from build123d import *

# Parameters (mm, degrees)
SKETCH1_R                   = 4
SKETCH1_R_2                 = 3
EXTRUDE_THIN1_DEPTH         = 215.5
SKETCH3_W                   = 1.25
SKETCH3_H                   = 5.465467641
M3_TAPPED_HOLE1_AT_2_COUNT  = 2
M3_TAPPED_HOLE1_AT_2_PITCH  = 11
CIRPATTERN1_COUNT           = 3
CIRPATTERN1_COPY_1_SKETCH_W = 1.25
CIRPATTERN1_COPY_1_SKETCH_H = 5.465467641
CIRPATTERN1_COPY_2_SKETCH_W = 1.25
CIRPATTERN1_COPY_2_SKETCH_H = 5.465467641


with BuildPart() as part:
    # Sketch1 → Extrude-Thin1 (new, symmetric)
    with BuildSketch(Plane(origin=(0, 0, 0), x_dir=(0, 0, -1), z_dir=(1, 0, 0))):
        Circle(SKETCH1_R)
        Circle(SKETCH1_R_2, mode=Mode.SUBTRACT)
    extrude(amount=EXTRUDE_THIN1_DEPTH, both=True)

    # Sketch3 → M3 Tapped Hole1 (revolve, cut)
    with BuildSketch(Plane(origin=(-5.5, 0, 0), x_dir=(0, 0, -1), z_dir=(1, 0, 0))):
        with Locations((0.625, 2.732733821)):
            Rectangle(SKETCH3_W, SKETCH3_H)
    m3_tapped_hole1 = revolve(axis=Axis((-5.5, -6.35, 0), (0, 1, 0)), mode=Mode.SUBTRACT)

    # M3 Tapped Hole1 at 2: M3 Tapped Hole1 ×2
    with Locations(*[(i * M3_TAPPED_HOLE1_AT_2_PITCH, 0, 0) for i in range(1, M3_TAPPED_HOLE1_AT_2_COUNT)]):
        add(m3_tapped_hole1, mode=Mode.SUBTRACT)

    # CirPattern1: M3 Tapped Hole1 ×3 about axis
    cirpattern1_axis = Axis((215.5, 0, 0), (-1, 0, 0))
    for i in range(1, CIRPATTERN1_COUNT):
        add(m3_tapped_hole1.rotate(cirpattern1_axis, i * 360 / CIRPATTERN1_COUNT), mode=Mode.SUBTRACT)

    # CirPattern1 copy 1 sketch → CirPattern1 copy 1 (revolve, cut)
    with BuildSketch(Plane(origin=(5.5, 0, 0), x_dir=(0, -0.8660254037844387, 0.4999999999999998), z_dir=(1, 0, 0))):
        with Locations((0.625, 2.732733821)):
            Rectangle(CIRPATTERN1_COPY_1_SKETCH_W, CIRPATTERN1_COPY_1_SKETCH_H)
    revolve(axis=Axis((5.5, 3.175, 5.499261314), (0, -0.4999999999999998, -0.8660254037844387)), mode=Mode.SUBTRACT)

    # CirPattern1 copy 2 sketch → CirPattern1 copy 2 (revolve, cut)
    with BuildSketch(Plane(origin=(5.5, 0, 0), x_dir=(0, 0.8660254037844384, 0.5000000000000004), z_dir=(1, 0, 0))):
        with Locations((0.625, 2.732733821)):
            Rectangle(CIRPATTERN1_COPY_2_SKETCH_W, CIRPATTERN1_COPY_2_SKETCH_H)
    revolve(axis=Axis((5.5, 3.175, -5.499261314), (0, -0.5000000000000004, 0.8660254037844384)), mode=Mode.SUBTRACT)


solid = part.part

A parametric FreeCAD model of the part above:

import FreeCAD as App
import Part
import Sketcher
from FreeCAD import Vector
Q = App.Units.Quantity

doc = App.newDocument("Part")
params = doc.addObject("Spreadsheet::Sheet", "Params")
for row, (alias, value) in enumerate([
    ("sketch1_diameter", "8 mm"),
    ("sketch1_diameter2", "6 mm"),
    ("pad1_length", "431 mm"),
    ("sketch2_height", "1.25 mm"),
    ("groove_angle", "360 deg"),
    ("linearpattern_pitch", "11 mm"),
    ("sketch3_length", "1.25 mm"),
    ("groove2_angle", "360 deg"),
    ("sketch4_length", "1.25 mm"),
    ("groove3_angle", "360 deg"),
], start=1):
    params.set(f"A{row}", alias)
    params.set(f"B{row}", "=" + value)
    params.setAlias(f"B{row}", alias)

body = doc.addObject("PartDesign::Body", "Body")

# Sketch on YZ plane
sketch1 = body.newObject("Sketcher::SketchObject", "Sketch")
sketch1.AttachmentSupport = (doc.getObject("YZ_Plane"), [""])
sketch1.MapMode = "FlatFace"
sketch1.addGeometry([
    Part.Circle(Vector(0, 0, 0), Vector(0, 0, 1), 4),
    Part.Circle(Vector(0, 0, 0), Vector(0, 0, 1), 3),
], False)
sketch1.addConstraint([
    Sketcher.Constraint("Coincident", 0, 3, -1, 1),
    Sketcher.Constraint("Coincident", 1, 3, -1, 1),
    Sketcher.Constraint("Diameter", 0, Q("8 mm")),
    Sketcher.Constraint("Diameter", 1, Q("6 mm")),
])
sketch1.setExpression("Constraints[2]", "Params.sketch1_diameter")
sketch1.setExpression("Constraints[3]", "Params.sketch1_diameter2")
pad1 = body.newObject("PartDesign::Pad", "Pad")
pad1.Profile = sketch1
pad1.setExpression("Length", "Params.pad1_length")
pad1.Midplane = True

# Sketch on YZ plane
sketch2 = body.newObject("Sketcher::SketchObject", "Sketch001")
sketch2.AttachmentSupport = (doc.getObject("YZ_Plane"), [""])
sketch2.MapMode = "FlatFace"
sketch2.AttachmentOffset = App.Placement(Vector(0, 0, -5.5), App.Rotation())
sketch2.addGeometry([
    Part.LineSegment(Vector(5.465468, 0, 0), Vector(0, 0, 0)),
    Part.LineSegment(Vector(0, 0, 0), Vector(0, -1.25, 0)),
    Part.LineSegment(Vector(0, -1.25, 0), Vector(5.465468, -1.25, 0)),
    Part.LineSegment(Vector(5.465468, -1.25, 0), Vector(5.465468, 0, 0)),
], False)
sketch2.addConstraint([
    Sketcher.Constraint("Coincident", 0, 2, 1, 1),
    Sketcher.Constraint("Coincident", 1, 2, 2, 1),
    Sketcher.Constraint("Coincident", 2, 2, 3, 1),
    Sketcher.Constraint("Coincident", 3, 2, 0, 1),
    Sketcher.Constraint("Horizontal", 0),
    Sketcher.Constraint("Vertical", 1),
    Sketcher.Constraint("Horizontal", 2),
    Sketcher.Constraint("Vertical", 3),
    Sketcher.Constraint("Coincident", 0, 2, -1, 1),
    Sketcher.Constraint("DistanceY", 1, 2, 1, 1, Q("1.25 mm")),
    Sketcher.Constraint("DistanceX", 0, 2, 0, 1, Q("5.465468 mm")),
])
sketch2.setExpression("Constraints[9]", "Params.sketch2_height")
groove = body.newObject("PartDesign::Groove", "Groove")
groove.Profile = sketch2
groove.ReferenceAxis = (sketch2, ["H_Axis"])
groove.setExpression("Angle", "Params.groove_angle")
doc.recompute()

linearpattern = body.newObject("PartDesign::LinearPattern", "LinearPattern")
linearpattern.Originals = [groove]
linearpattern.Direction = (doc.getObject("X_Axis"), [""])
linearpattern.Mode = "offset"
linearpattern.setExpression("Offset", "Params.linearpattern_pitch")
linearpattern.Occurrences = 2
body.Tip = linearpattern
doc.recompute()

polarpattern = body.newObject("PartDesign::PolarPattern", "PolarPattern")
polarpattern.Originals = [groove]
polarpattern.Axis = (doc.getObject("X_Axis"), [""])
polarpattern.Angle = 360
polarpattern.Occurrences = 3
body.Tip = polarpattern

# Sketch on YZ plane
sketch3 = body.newObject("Sketcher::SketchObject", "Sketch002")
sketch3.AttachmentSupport = (doc.getObject("YZ_Plane"), [""])
sketch3.MapMode = "FlatFace"
sketch3.AttachmentOffset = App.Placement(Vector(0, 0, 5.5), App.Rotation())
sketch3.addGeometry([
    Part.LineSegment(Vector(-2.732734, -4.733234, 0), Vector(0, 0, 0)),
    Part.LineSegment(Vector(0, 0, 0), Vector(-1.082532, 0.625, 0)),
    Part.LineSegment(Vector(-1.082532, 0.625, 0), Vector(-3.815266, -4.108234, 0)),
    Part.LineSegment(Vector(-3.815266, -4.108234, 0), Vector(-2.732734, -4.733234, 0)),
], False)
sketch3.addGeometry(Part.LineSegment(Vector(0, 0, 0), Vector(-2.732734, -4.733234, 0)), True)  # axis
sketch3.addConstraint([
    Sketcher.Constraint("Coincident", 0, 2, 1, 1),
    Sketcher.Constraint("Coincident", 1, 2, 2, 1),
    Sketcher.Constraint("Coincident", 2, 2, 3, 1),
    Sketcher.Constraint("Coincident", 3, 2, 0, 1),
    Sketcher.Constraint("Coincident", 0, 2, -1, 1),
    Sketcher.Constraint("Coincident", 4, 1, -1, 1),
    Sketcher.Constraint("Coincident", 4, 2, 3, 2),
    Sketcher.Constraint("Perpendicular", 0, 1),
    Sketcher.Constraint("Perpendicular", 1, 2),
    Sketcher.Constraint("Perpendicular", 2, 3),
    Sketcher.Constraint("Angle", 0, Q("60 deg")),
    Sketcher.Constraint("Distance", 1, Q("1.25 mm")),
    Sketcher.Constraint("Distance", 0, Q("5.465468 mm")),
])
sketch3.setExpression("Constraints[11]", "Params.sketch3_length")
groove2 = body.newObject("PartDesign::Groove", "Groove001")
groove2.Profile = sketch3
groove2.ReferenceAxis = (sketch3, ["Axis0"])
groove2.setExpression("Angle", "Params.groove2_angle")

# Sketch on YZ plane
sketch4 = body.newObject("Sketcher::SketchObject", "Sketch003")
sketch4.AttachmentSupport = (doc.getObject("YZ_Plane"), [""])
sketch4.MapMode = "FlatFace"
sketch4.AttachmentOffset = App.Placement(Vector(0, 0, 5.5), App.Rotation())
sketch4.addGeometry([
    Part.LineSegment(Vector(-2.732734, 4.733234, 0), Vector(0, 0, 0)),
    Part.LineSegment(Vector(0, 0, 0), Vector(1.082532, 0.625, 0)),
    Part.LineSegment(Vector(1.082532, 0.625, 0), Vector(-1.650202, 5.358234, 0)),
    Part.LineSegment(Vector(-1.650202, 5.358234, 0), Vector(-2.732734, 4.733234, 0)),
], False)
sketch4.addGeometry(Part.LineSegment(Vector(0, 0, 0), Vector(-2.732734, 4.733234, 0)), True)  # axis
sketch4.addConstraint([
    Sketcher.Constraint("Coincident", 0, 2, 1, 1),
    Sketcher.Constraint("Coincident", 1, 2, 2, 1),
    Sketcher.Constraint("Coincident", 2, 2, 3, 1),
    Sketcher.Constraint("Coincident", 3, 2, 0, 1),
    Sketcher.Constraint("Coincident", 0, 2, -1, 1),
    Sketcher.Constraint("Coincident", 4, 1, -1, 1),
    Sketcher.Constraint("Coincident", 4, 2, 3, 2),
    Sketcher.Constraint("Perpendicular", 0, 1),
    Sketcher.Constraint("Perpendicular", 1, 2),
    Sketcher.Constraint("Perpendicular", 2, 3),
    Sketcher.Constraint("Angle", 0, Q("-60 deg")),
    Sketcher.Constraint("Distance", 1, Q("1.25 mm")),
    Sketcher.Constraint("Distance", 0, Q("5.465468 mm")),
])
sketch4.setExpression("Constraints[11]", "Params.sketch4_length")
groove3 = body.newObject("PartDesign::Groove", "Groove002")
groove3.Profile = sketch4
groove3.ReferenceAxis = (sketch4, ["Axis0"])
groove3.setExpression("Angle", "Params.groove3_angle")

doc.recompute()
